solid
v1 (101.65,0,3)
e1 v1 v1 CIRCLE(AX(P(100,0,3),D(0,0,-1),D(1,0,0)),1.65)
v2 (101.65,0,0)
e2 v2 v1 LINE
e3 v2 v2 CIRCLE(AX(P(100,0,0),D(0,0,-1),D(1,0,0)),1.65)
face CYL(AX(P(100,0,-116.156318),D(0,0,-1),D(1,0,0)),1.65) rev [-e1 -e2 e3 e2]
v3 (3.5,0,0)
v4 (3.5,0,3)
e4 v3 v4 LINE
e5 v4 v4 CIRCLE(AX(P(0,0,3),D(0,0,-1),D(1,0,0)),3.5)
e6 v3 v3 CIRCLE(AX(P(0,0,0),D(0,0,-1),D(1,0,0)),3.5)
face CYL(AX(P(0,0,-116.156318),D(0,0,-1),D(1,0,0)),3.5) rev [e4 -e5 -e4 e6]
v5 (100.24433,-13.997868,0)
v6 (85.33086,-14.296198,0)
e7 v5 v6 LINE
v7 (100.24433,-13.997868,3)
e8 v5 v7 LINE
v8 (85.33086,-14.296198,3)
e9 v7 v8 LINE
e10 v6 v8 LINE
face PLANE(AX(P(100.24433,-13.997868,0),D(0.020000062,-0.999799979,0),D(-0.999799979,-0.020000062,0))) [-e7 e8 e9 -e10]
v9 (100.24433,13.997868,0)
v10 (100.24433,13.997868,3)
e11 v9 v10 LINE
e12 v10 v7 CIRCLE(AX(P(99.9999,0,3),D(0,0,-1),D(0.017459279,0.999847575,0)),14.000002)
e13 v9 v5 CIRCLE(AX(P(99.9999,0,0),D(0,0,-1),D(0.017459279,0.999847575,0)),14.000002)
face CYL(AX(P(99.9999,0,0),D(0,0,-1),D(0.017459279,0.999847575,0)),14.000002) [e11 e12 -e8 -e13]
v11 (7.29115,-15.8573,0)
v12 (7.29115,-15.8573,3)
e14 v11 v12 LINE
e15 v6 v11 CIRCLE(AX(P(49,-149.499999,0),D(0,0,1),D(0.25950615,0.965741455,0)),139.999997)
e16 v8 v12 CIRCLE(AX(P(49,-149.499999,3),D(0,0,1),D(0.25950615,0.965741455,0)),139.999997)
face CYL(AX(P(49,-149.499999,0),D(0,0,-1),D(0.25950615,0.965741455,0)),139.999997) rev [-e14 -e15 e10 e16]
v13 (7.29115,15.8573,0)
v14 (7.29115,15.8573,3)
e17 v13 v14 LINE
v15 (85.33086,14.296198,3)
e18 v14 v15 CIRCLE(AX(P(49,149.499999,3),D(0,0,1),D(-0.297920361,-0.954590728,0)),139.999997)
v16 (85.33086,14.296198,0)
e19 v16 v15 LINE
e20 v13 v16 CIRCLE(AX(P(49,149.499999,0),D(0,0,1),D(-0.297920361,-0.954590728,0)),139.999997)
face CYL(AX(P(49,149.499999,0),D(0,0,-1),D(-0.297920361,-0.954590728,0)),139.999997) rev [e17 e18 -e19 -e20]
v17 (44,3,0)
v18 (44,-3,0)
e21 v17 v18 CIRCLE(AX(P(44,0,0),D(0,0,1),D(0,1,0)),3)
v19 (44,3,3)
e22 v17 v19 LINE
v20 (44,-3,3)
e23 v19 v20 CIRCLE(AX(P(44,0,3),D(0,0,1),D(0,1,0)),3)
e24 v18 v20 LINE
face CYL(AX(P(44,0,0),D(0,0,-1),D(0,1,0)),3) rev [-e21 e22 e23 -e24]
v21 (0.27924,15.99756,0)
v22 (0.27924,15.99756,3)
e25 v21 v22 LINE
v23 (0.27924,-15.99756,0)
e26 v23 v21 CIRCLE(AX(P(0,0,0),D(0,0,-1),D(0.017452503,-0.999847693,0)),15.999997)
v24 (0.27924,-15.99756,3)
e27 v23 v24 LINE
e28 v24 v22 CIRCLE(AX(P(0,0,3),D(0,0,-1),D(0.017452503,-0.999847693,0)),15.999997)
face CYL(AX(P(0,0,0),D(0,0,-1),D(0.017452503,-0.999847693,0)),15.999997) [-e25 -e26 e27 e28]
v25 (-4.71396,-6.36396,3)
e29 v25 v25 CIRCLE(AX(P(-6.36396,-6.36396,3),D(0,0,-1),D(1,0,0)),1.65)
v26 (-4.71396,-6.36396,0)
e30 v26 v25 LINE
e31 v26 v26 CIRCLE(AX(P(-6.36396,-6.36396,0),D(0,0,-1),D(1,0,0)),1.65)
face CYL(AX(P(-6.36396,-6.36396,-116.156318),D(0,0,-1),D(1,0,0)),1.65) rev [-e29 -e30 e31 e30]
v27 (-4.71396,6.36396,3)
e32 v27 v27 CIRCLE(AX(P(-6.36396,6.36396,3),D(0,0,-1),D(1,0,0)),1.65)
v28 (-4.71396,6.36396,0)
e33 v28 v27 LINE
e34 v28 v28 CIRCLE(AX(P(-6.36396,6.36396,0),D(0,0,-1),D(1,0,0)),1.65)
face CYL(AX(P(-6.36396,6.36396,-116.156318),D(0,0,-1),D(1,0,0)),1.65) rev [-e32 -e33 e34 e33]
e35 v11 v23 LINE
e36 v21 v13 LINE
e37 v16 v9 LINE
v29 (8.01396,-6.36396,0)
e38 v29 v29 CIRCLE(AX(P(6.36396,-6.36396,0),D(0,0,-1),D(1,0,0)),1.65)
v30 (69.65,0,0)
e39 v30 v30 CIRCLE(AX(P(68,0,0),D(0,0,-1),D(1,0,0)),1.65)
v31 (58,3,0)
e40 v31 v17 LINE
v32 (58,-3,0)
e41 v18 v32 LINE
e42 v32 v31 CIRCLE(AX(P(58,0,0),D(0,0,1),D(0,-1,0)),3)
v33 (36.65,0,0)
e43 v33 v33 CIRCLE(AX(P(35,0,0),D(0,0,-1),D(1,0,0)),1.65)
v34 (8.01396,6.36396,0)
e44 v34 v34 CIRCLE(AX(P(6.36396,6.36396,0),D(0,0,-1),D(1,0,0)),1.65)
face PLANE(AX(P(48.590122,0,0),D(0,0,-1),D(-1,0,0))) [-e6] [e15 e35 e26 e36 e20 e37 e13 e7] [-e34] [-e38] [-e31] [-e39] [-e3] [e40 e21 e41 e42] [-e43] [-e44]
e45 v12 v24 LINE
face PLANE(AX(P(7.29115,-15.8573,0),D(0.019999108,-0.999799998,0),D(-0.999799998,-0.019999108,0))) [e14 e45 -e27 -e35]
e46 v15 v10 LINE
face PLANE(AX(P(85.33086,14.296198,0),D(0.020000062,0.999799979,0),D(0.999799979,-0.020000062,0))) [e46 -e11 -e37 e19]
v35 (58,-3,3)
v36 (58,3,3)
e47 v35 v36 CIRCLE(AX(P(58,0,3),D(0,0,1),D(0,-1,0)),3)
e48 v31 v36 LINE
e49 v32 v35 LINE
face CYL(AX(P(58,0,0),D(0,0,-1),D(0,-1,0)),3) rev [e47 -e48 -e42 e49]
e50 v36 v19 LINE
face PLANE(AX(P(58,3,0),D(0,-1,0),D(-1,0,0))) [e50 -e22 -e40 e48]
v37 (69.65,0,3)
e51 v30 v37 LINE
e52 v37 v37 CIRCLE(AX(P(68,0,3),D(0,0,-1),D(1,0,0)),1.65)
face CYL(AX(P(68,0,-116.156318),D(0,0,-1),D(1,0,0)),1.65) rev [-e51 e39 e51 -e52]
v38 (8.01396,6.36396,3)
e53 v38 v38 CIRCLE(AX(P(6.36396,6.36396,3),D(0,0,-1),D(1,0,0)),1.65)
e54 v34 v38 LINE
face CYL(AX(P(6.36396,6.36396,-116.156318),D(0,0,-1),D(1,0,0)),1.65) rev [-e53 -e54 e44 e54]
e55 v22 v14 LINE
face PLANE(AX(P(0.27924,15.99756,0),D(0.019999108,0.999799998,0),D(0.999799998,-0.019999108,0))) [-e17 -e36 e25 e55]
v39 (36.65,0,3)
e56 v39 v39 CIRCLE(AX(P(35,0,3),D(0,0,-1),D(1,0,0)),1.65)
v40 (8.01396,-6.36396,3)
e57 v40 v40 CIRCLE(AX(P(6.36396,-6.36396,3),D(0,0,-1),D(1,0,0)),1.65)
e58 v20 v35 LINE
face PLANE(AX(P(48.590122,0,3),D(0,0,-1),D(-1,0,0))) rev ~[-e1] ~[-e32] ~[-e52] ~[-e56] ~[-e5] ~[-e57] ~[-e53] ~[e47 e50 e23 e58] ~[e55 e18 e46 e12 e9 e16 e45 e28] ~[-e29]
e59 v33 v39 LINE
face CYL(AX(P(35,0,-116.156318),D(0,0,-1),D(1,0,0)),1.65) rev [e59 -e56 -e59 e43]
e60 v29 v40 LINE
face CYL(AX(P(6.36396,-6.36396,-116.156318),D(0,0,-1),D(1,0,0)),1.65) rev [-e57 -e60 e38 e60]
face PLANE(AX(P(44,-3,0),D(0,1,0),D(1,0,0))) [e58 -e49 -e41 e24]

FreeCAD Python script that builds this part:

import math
import FreeCAD as App
import Part
import Sketcher
Q = App.Units.Quantity

doc = App.newDocument("Part")
body = doc.addObject("PartDesign::Body", "Body")

# Sketch on XY plane
sketch1 = body.newObject("Sketcher::SketchObject", "Sketch")
sketch1.AttachmentSupport = (doc.getObject("XY_Plane"), [""])
sketch1.MapMode = "FlatFace"
sketch1.addGeometry([
    Part.LineSegment(App.Vector(0.27924, -15.99756, 0), App.Vector(7.29115, -15.8573, 0)),  # 0
    Part.ArcOfCircle(Part.Circle(App.Vector(49, -149.499999, 0), App.Vector(0, 0, 1), 139.999997), math.radians(74.959239), math.radians(107.332738)),  # 1
    Part.LineSegment(App.Vector(85.33086, -14.296198, 0), App.Vector(100.24433, -13.997868, 0)),  # 2
    Part.ArcOfCircle(Part.Circle(App.Vector(99.9999, 0, 0), App.Vector(0, 0, 1), 14.000002), math.radians(-88.999606), math.radians(88.999606)),  # 3
    Part.LineSegment(App.Vector(100.24433, 13.997868, 0), App.Vector(85.33086, 14.296198, 0)),  # 4
    Part.ArcOfCircle(Part.Circle(App.Vector(49, 149.499999, 0), App.Vector(0, 0, 1), 139.999997), math.radians(-107.332738), math.radians(-74.959239)),  # 5
    Part.LineSegment(App.Vector(7.29115, 15.8573, 0), App.Vector(0.27924, 15.99756, 0)),  # 6
    Part.ArcOfCircle(Part.Circle(App.Vector(0, 0, 0), App.Vector(0, 0, 1), 15.999997), math.radians(88.999994), math.radians(271.000006)),  # 7
    Part.ArcOfCircle(Part.Circle(App.Vector(58, 0, 0), App.Vector(0, 0, 1), 3), math.radians(-90), math.radians(90)),  # 8
    Part.LineSegment(App.Vector(58, -3, 0), App.Vector(44, -3, 0)),  # 9
    Part.ArcOfCircle(Part.Circle(App.Vector(44, 0, 0), App.Vector(0, 0, 1), 3), math.radians(90), math.radians(270)),  # 10
    Part.LineSegment(App.Vector(44, 3, 0), App.Vector(58, 3, 0)),  # 11
], False)
sketch1.addConstraint([
    Sketcher.Constraint("Coincident", 0, 2, 1, 2),
    Sketcher.Constraint("Coincident", 1, 1, 2, 1),
    Sketcher.Constraint("Coincident", 2, 2, 3, 1),
    Sketcher.Constraint("Coincident", 3, 2, 4, 1),
    Sketcher.Constraint("Coincident", 4, 2, 5, 2),
    Sketcher.Constraint("Coincident", 5, 1, 6, 1),
    Sketcher.Constraint("Coincident", 6, 2, 7, 1),
    Sketcher.Constraint("Coincident", 7, 2, 0, 1),
    Sketcher.Constraint("Coincident", 8, 1, 9, 1),
    Sketcher.Constraint("Coincident", 9, 2, 10, 2),
    Sketcher.Constraint("Coincident", 10, 1, 11, 1),
    Sketcher.Constraint("Coincident", 11, 2, 8, 2),
    Sketcher.Constraint("Horizontal", 9),
    Sketcher.Constraint("Horizontal", 11),
    Sketcher.Constraint("Coincident", 7, 3, -1, 1),
    Sketcher.Constraint("PointOnObject", 3, 3, -1),
    Sketcher.Constraint("PointOnObject", 8, 3, -1),
    Sketcher.Constraint("Radius", 8, Q("3 mm")),
    Sketcher.Constraint("DistanceX", 9, 2, 9, 1, Q("14 mm")),
    Sketcher.Constraint("DistanceX", 11, 1, 11, 2, Q("14 mm")),
    Sketcher.Constraint("DistanceX", -1, 1, 1, 3, Q("49 mm")),
    Sketcher.Constraint("DistanceX", -1, 1, 5, 3, Q("49 mm")),
    Sketcher.Constraint("DistanceX", -1, 1, 8, 3, Q("58 mm")),
    Sketcher.Constraint("DistanceX", -1, 1, 10, 3, Q("44 mm")),
    Sketcher.Constraint("DistanceX", -1, 1, 8, 1, Q("58 mm")),
    Sketcher.Constraint("DistanceX", -1, 1, 10, 1, Q("44 mm")),
    Sketcher.Constraint("DistanceY", 1, 3, 5, 3, Q("298.999998 mm")),
    Sketcher.Constraint("DistanceY", 1, 3, -1, 1, Q("149.499999 mm")),
    Sketcher.Constraint("Radius", 1, Q("139.999997 mm")),
    Sketcher.Constraint("Radius", 3, Q("14.000002 mm")),
    Sketcher.Constraint("Radius", 5, Q("139.999997 mm")),
    Sketcher.Constraint("Radius", 7, Q("15.999997 mm")),
    Sketcher.Constraint("DistanceX", -1, 1, 3, 3, Q("99.9999 mm")),
    Sketcher.Constraint("DistanceY", 0, 2, -1, 1, Q("15.8573 mm")),
    Sketcher.Constraint("DistanceY", 1, 1, -1, 1, Q("14.296198 mm")),
    Sketcher.Constraint("DistanceY", -1, 1, 4, 2, Q("14.296198 mm")),
    Sketcher.Constraint("DistanceY", -1, 1, 5, 1, Q("15.8573 mm")),
    Sketcher.Constraint("DistanceX", -1, 1, 2, 2, Q("100.24433 mm")),
    Sketcher.Constraint("DistanceX", -1, 1, 3, 2, Q("100.24433 mm")),
    Sketcher.Constraint("DistanceX", -1, 1, 6, 2, Q("0.27924 mm")),
    Sketcher.Constraint("DistanceX", -1, 1, 7, 2, Q("0.27924 mm")),
])
pad1 = body.newObject("PartDesign::Pad", "Pad")
pad1.Profile = sketch1
pad1.Length = 3

# Sketch on XY plane
sketch2 = body.newObject("Sketcher::SketchObject", "Sketch001")
sketch2.AttachmentSupport = (doc.getObject("XY_Plane"), [""])
sketch2.MapMode = "FlatFace"
sketch2.addGeometry([
    Part.Circle(App.Vector(-6.4, -6.4, 0), App.Vector(0, 0, 1), 1.6),  # 0
    Part.Circle(App.Vector(6.4, -6.4, 0), App.Vector(0, 0, 1), 1.6),  # 1
    Part.Circle(App.Vector(0, 0, 0), App.Vector(0, 0, 1), 3.5),  # 2
    Part.Circle(App.Vector(35, 0, 0), App.Vector(0, 0, 1), 1.6),  # 3
    Part.Circle(App.Vector(-6.4, 6.4, 0), App.Vector(0, 0, 1), 1.6),  # 4
    Part.Circle(App.Vector(6.4, 6.4, 0), App.Vector(0, 0, 1), 1.6),  # 5
    Part.Circle(App.Vector(68, 0, 0), App.Vector(0, 0, 1), 1.6),  # 6
    Part.Circle(App.Vector(100, 0, 0), App.Vector(0, 0, 1), 1.6),  # 7
], False)
sketch2.addConstraint([
    Sketcher.Constraint("Coincident", 2, 3, -1, 1),
    Sketcher.Constraint("Equal", 0, 1),
    Sketcher.Constraint("Equal", 1, 3),
    Sketcher.Constraint("Equal", 3, 4),
    Sketcher.Constraint("Equal", 4, 5),
    Sketcher.Constraint("Equal", 5, 6),
    Sketcher.Constraint("Equal", 6, 7),
    Sketcher.Constraint("Symmetric", 1, 3, 4, 3, -1, 1),
    Sketcher.Constraint("Symmetric", 0, 3, 5, 3, -1, 1),
    Sketcher.Constraint("Symmetric", 0, 3, 1, 3, -2),
    Sketcher.Constraint("PointOnObject", 3, 3, -1),
    Sketcher.Constraint("PointOnObject", 6, 3, -1),
    Sketcher.Constraint("PointOnObject", 7, 3, -1),
    Sketcher.Constraint("Diameter", 2, Q("7 mm")),
    Sketcher.Constraint("Diameter", 0, Q("3.3 mm")),
    Sketcher.Constraint("DistanceX", -1, 1, 3, 3, Q("35 mm")),
    Sketcher.Constraint("DistanceX", -1, 1, 6, 3, Q("68 mm")),
    Sketcher.Constraint("DistanceX", -1, 1, 7, 3, Q("100 mm")),
    Sketcher.Constraint("DistanceX", 0, 3, -1, 1, Q("6.36396 mm")),
    Sketcher.Constraint("DistanceY", 0, 3, -1, 1, Q("6.36396 mm")),
])
pocket1 = body.newObject("PartDesign::Pocket", "Pocket")
pocket1.Profile = sketch2
pocket1.Type = "ThroughAll"
pocket1.Midplane = True

doc.recompute()
